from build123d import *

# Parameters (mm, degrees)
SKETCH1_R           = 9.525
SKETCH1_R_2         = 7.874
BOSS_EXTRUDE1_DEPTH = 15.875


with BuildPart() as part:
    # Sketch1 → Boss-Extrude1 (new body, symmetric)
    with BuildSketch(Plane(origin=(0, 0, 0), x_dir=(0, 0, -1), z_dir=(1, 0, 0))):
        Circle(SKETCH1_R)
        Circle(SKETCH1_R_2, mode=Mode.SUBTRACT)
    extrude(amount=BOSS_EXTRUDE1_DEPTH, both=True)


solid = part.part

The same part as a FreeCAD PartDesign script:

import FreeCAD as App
import Part
import Sketcher
Q = App.Units.Quantity

doc = App.newDocument("Part")
params = doc.addObject("Spreadsheet::Sheet", "Params")
for row, (alias, value) in enumerate([
    ("sketch1_diameter", "0.75 in"),
    ("sketch1_diameter2", "0.62 in"),
    ("pad1_length", "1.25 in"),
], start=1):
    params.set(f"A{row}", alias)
    params.set(f"B{row}", "=" + value)
    params.setAlias(f"B{row}", alias)

body = doc.addObject("PartDesign::Body", "Body")

sketch1 = body.newObject("Sketcher::SketchObject", "Sketch")
sketch1.AttachmentSupport = (doc.getObject("YZ_Plane"), [""])
sketch1.MapMode = "FlatFace"
sketch1.addGeometry([
    Part.Circle(App.Vector(0, 0, 0), App.Vector(0, 0, 1), 10),
    Part.Circle(App.Vector(0, 0, 0), App.Vector(0, 0, 1), 8),
], False)
sketch1.addConstraint([
    Sketcher.Constraint("Coincident", 0, 3, -1, 1),
    Sketcher.Constraint("Coincident", 1, 3, -1, 1),
    Sketcher.Constraint("Diameter", 0, Q("0.75 in")),
    Sketcher.Constraint("Diameter", 1, Q("0.62 in")),
])
sketch1.setExpression("Constraints[2]", "Params.sketch1_diameter")
sketch1.setExpression("Constraints[3]", "Params.sketch1_diameter2")
pad1 = body.newObject("PartDesign::Pad", "Pad")
pad1.Profile = sketch1
pad1.setExpression("Length", "Params.pad1_length")
pad1.Midplane = True

doc.recompute()
